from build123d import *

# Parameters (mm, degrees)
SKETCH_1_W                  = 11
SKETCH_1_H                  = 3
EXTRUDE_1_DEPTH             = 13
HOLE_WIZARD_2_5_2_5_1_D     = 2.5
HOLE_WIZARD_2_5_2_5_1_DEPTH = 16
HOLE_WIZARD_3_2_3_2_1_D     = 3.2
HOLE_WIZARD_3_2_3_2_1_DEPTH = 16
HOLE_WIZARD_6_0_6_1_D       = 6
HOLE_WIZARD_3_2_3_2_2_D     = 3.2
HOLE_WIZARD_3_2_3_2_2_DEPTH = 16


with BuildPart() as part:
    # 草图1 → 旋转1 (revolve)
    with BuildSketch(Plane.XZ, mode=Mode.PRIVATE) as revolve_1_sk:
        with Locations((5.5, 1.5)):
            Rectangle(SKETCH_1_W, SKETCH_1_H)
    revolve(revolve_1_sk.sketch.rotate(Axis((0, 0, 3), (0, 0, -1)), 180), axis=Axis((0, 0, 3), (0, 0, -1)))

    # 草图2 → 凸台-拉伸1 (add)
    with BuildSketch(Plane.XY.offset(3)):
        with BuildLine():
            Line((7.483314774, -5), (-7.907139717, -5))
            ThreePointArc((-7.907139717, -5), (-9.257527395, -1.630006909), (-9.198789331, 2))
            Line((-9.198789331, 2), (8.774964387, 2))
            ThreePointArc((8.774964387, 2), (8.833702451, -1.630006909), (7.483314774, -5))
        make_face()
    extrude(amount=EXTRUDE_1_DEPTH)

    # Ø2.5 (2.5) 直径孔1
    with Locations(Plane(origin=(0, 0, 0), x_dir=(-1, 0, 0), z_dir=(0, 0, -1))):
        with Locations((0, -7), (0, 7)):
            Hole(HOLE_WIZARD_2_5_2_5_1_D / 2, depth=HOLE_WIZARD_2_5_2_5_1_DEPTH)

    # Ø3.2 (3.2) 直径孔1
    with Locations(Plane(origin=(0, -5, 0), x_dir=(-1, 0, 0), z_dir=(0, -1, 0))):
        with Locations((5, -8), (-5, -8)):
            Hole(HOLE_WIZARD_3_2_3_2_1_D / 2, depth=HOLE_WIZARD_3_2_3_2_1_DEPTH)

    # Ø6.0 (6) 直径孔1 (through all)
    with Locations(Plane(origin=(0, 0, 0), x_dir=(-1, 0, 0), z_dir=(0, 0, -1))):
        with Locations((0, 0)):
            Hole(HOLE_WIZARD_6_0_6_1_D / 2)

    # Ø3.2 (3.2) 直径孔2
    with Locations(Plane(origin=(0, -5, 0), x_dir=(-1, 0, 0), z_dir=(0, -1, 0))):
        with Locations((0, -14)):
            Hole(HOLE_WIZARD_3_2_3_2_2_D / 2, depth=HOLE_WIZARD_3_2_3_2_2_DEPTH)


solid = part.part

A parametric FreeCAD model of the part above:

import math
import FreeCAD as App
import Part
import Sketcher
from FreeCAD import Vector

doc = App.newDocument("Part")
body = doc.addObject("PartDesign::Body", "Body")

# Sketch on XZ plane
sketch1 = doc.addObject("Sketcher::SketchObject", "Sketch")
body.addObject(sketch1)
sketch1.AttachmentSupport = (doc.XZ_Plane, [""])
sketch1.MapMode = "FlatFace"
sketch1.addGeometry(Part.LineSegment(Vector(0, 3, 0), Vector(0, 0, 0)), False)
sketch1.addGeometry(Part.LineSegment(Vector(0, 0, 0), Vector(11, 0, 0)), False)
sketch1.addGeometry(Part.LineSegment(Vector(11, 0, 0), Vector(11, 3, 0)), False)
sketch1.addGeometry(Part.LineSegment(Vector(11, 3, 0), Vector(0, 3, 0)), False)
sketch1.addConstraint(Sketcher.Constraint("Coincident", 0, 2, 1, 1))
sketch1.addConstraint(Sketcher.Constraint("Coincident", 1, 2, 2, 1))
sketch1.addConstraint(Sketcher.Constraint("Coincident", 2, 2, 3, 1))
sketch1.addConstraint(Sketcher.Constraint("Coincident", 3, 2, 0, 1))
sketch1.addConstraint(Sketcher.Constraint("Vertical", 0))
sketch1.addConstraint(Sketcher.Constraint("Horizontal", 1))
sketch1.addConstraint(Sketcher.Constraint("Vertical", 2))
sketch1.addConstraint(Sketcher.Constraint("Horizontal", 3))
sketch1.addConstraint(Sketcher.Constraint("Coincident", 0, 2, -1, 1))
sketch1.addConstraint(Sketcher.Constraint("DistanceX", 1, 1, 1, 2, 11.0))
sketch1.addConstraint(Sketcher.Constraint("DistanceY", 0, 2, 0, 1, 3.0))
revolution = doc.addObject("PartDesign::Revolution", "Revolution")
body.addObject(revolution)
revolution.Profile = sketch1
revolution.ReferenceAxis = (sketch1, ["V_Axis"])
revolution.Angle = 360

# Sketch on XY plane
sketch2 = doc.addObject("Sketcher::SketchObject", "Sketch001")
body.addObject(sketch2)
sketch2.AttachmentSupport = (doc.XY_Plane, [""])
sketch2.MapMode = "FlatFace"
sketch2.AttachmentOffset = App.Placement(Vector(0, 0, 3), App.Rotation())
sketch2.addGeometry(Part.LineSegment(Vector(-8, -5, 0), Vector(7, -5, 0)), False)
sketch2.addGeometry(Part.ArcOfCircle(Part.Circle(Vector(0, 0, 0), Vector(0, 0, 1), 9), math.radians(-33), math.radians(12)), False)
sketch2.addGeometry(Part.LineSegment(Vector(9, 2, 0), Vector(-9, 2, 0)), False)
sketch2.addGeometry(Part.ArcOfCircle(Part.Circle(Vector(0, 0, 0), Vector(0, 0, 1), 9), math.radians(168), math.radians(213)), False)
sketch2.addConstraint(Sketcher.Constraint("Coincident", 0, 2, 1, 1))
sketch2.addConstraint(Sketcher.Constraint("Coincident", 1, 2, 2, 1))
sketch2.addConstraint(Sketcher.Constraint("Coincident", 2, 2, 3, 1))
sketch2.addConstraint(Sketcher.Constraint("Coincident", 3, 2, 0, 1))
sketch2.addConstraint(Sketcher.Constraint("Horizontal", 0))
sketch2.addConstraint(Sketcher.Constraint("Horizontal", 2))
sketch2.addConstraint(Sketcher.Constraint("Coincident", 3, 3, 1, 3))
sketch2.addConstraint(Sketcher.Constraint("Equal", 1, 3))
sketch2.addConstraint(Sketcher.Constraint("DistanceY", 0, 2, -1, 1, 5.0))
sketch2.addConstraint(Sketcher.Constraint("DistanceY", -1, 1, 1, 2, 2.0))
sketch2.addConstraint(Sketcher.Constraint("Radius", 1, 9.198319))
sketch2.addConstraint(Sketcher.Constraint("DistanceX", 0, 1, 0, 2, 15.390454))
sketch2.addConstraint(Sketcher.Constraint("DistanceX", 2, 2, -1, 1, 9.198789))
pad1 = doc.addObject("PartDesign::Pad", "Pad")
body.addObject(pad1)
pad1.Profile = sketch2
pad1.Length = 13

# Sketch on XY plane
sketch3 = doc.addObject("Sketcher::SketchObject", "Sketch002")
body.addObject(sketch3)
sketch3.AttachmentSupport = (doc.XY_Plane, [""])
sketch3.MapMode = "FlatFace"
sketch3.addGeometry(Part.Circle(Vector(0, -7, 0), Vector(0, 0, 1), 1.2), False)
sketch3.addGeometry(Part.Circle(Vector(0, 7, 0), Vector(0, 0, 1), 1.2), False)
sketch3.addConstraint(Sketcher.Constraint("Equal", 0, 1))
sketch3.addConstraint(Sketcher.Constraint("Symmetric", 0, 3, 1, 3, -1, 1))
sketch3.addConstraint(Sketcher.Constraint("PointOnObject", 0, 3, -2))
sketch3.addConstraint(Sketcher.Constraint("Diameter", 0, 2.5))
sketch3.addConstraint(Sketcher.Constraint("DistanceY", 0, 3, -1, 1, 7.0))
doc.recompute()
hole = doc.addObject("PartDesign::Hole", "Hole")
body.addObject(hole)
hole.Profile = sketch3
hole.ThreadType = "None"
hole.Diameter = 2.5
hole.DepthType = "Dimension"
hole.Depth = 16
hole.DrillPoint = "Flat"
hole.Reversed = True

# Sketch on XZ plane
sketch4 = doc.addObject("Sketcher::SketchObject", "Sketch003")
body.addObject(sketch4)
sketch4.AttachmentSupport = (doc.XZ_Plane, [""])
sketch4.MapMode = "FlatFace"
sketch4.AttachmentOffset = App.Placement(Vector(0, 0, 5), App.Rotation())
sketch4.addGeometry(Part.Circle(Vector(-5, 8, 0), Vector(0, 0, 1), 1.6), False)
sketch4.addGeometry(Part.Circle(Vector(5, 8, 0), Vector(0, 0, 1), 1.6), False)
sketch4.addConstraint(Sketcher.Constraint("Equal", 0, 1))
sketch4.addConstraint(Sketcher.Constraint("Symmetric", 0, 3, 1, 3, -2))
sketch4.addConstraint(Sketcher.Constraint("Diameter", 0, 3.2))
sketch4.addConstraint(Sketcher.Constraint("DistanceX", 0, 3, -1, 1, 5.0))
sketch4.addConstraint(Sketcher.Constraint("DistanceY", -1, 1, 0, 3, 8.0))
doc.recompute()
hole2 = doc.addObject("PartDesign::Hole", "Hole001")
body.addObject(hole2)
hole2.Profile = sketch4
hole2.ThreadType = "None"
hole2.Diameter = 3.2
hole2.DepthType = "Dimension"
hole2.Depth = 16
hole2.DrillPoint = "Flat"

# Sketch on XY plane
sketch5 = doc.addObject("Sketcher::SketchObject", "Sketch004")
body.addObject(sketch5)
sketch5.AttachmentSupport = (doc.XY_Plane, [""])
sketch5.MapMode = "FlatFace"
sketch5.addGeometry(Part.Circle(Vector(0, 0, 0), Vector(0, 0, 1), 3), False)
sketch5.addConstraint(Sketcher.Constraint("Coincident", 0, 3, -1, 1))
sketch5.addConstraint(Sketcher.Constraint("Diameter", 0, 6.0))
doc.recompute()
hole3 = doc.addObject("PartDesign::Hole", "Hole002")
body.addObject(hole3)
hole3.Profile = sketch5
hole3.ThreadType = "None"
hole3.Diameter = 6
hole3.DepthType = "ThroughAll"
hole3.Reversed = True

# Sketch on XZ plane
sketch6 = doc.addObject("Sketcher::SketchObject", "Sketch005")
body.addObject(sketch6)
sketch6.AttachmentSupport = (doc.XZ_Plane, [""])
sketch6.MapMode = "FlatFace"
sketch6.AttachmentOffset = App.Placement(Vector(0, 0, 5), App.Rotation())
sketch6.addGeometry(Part.Circle(Vector(0, 14, 0), Vector(0, 0, 1), 1.6), False)
sketch6.addConstraint(Sketcher.Constraint("PointOnObject", 0, 3, -2))
sketch6.addConstraint(Sketcher.Constraint("Diameter", 0, 3.2))
sketch6.addConstraint(Sketcher.Constraint("DistanceY", -1, 1, 0, 3, 14.0))
doc.recompute()
hole4 = doc.addObject("PartDesign::Hole", "Hole003")
body.addObject(hole4)
hole4.Profile = sketch6
hole4.ThreadType = "None"
hole4.Diameter = 3.2
hole4.DepthType = "Dimension"
hole4.Depth = 16
hole4.DrillPoint = "Flat"

doc.recompute()
